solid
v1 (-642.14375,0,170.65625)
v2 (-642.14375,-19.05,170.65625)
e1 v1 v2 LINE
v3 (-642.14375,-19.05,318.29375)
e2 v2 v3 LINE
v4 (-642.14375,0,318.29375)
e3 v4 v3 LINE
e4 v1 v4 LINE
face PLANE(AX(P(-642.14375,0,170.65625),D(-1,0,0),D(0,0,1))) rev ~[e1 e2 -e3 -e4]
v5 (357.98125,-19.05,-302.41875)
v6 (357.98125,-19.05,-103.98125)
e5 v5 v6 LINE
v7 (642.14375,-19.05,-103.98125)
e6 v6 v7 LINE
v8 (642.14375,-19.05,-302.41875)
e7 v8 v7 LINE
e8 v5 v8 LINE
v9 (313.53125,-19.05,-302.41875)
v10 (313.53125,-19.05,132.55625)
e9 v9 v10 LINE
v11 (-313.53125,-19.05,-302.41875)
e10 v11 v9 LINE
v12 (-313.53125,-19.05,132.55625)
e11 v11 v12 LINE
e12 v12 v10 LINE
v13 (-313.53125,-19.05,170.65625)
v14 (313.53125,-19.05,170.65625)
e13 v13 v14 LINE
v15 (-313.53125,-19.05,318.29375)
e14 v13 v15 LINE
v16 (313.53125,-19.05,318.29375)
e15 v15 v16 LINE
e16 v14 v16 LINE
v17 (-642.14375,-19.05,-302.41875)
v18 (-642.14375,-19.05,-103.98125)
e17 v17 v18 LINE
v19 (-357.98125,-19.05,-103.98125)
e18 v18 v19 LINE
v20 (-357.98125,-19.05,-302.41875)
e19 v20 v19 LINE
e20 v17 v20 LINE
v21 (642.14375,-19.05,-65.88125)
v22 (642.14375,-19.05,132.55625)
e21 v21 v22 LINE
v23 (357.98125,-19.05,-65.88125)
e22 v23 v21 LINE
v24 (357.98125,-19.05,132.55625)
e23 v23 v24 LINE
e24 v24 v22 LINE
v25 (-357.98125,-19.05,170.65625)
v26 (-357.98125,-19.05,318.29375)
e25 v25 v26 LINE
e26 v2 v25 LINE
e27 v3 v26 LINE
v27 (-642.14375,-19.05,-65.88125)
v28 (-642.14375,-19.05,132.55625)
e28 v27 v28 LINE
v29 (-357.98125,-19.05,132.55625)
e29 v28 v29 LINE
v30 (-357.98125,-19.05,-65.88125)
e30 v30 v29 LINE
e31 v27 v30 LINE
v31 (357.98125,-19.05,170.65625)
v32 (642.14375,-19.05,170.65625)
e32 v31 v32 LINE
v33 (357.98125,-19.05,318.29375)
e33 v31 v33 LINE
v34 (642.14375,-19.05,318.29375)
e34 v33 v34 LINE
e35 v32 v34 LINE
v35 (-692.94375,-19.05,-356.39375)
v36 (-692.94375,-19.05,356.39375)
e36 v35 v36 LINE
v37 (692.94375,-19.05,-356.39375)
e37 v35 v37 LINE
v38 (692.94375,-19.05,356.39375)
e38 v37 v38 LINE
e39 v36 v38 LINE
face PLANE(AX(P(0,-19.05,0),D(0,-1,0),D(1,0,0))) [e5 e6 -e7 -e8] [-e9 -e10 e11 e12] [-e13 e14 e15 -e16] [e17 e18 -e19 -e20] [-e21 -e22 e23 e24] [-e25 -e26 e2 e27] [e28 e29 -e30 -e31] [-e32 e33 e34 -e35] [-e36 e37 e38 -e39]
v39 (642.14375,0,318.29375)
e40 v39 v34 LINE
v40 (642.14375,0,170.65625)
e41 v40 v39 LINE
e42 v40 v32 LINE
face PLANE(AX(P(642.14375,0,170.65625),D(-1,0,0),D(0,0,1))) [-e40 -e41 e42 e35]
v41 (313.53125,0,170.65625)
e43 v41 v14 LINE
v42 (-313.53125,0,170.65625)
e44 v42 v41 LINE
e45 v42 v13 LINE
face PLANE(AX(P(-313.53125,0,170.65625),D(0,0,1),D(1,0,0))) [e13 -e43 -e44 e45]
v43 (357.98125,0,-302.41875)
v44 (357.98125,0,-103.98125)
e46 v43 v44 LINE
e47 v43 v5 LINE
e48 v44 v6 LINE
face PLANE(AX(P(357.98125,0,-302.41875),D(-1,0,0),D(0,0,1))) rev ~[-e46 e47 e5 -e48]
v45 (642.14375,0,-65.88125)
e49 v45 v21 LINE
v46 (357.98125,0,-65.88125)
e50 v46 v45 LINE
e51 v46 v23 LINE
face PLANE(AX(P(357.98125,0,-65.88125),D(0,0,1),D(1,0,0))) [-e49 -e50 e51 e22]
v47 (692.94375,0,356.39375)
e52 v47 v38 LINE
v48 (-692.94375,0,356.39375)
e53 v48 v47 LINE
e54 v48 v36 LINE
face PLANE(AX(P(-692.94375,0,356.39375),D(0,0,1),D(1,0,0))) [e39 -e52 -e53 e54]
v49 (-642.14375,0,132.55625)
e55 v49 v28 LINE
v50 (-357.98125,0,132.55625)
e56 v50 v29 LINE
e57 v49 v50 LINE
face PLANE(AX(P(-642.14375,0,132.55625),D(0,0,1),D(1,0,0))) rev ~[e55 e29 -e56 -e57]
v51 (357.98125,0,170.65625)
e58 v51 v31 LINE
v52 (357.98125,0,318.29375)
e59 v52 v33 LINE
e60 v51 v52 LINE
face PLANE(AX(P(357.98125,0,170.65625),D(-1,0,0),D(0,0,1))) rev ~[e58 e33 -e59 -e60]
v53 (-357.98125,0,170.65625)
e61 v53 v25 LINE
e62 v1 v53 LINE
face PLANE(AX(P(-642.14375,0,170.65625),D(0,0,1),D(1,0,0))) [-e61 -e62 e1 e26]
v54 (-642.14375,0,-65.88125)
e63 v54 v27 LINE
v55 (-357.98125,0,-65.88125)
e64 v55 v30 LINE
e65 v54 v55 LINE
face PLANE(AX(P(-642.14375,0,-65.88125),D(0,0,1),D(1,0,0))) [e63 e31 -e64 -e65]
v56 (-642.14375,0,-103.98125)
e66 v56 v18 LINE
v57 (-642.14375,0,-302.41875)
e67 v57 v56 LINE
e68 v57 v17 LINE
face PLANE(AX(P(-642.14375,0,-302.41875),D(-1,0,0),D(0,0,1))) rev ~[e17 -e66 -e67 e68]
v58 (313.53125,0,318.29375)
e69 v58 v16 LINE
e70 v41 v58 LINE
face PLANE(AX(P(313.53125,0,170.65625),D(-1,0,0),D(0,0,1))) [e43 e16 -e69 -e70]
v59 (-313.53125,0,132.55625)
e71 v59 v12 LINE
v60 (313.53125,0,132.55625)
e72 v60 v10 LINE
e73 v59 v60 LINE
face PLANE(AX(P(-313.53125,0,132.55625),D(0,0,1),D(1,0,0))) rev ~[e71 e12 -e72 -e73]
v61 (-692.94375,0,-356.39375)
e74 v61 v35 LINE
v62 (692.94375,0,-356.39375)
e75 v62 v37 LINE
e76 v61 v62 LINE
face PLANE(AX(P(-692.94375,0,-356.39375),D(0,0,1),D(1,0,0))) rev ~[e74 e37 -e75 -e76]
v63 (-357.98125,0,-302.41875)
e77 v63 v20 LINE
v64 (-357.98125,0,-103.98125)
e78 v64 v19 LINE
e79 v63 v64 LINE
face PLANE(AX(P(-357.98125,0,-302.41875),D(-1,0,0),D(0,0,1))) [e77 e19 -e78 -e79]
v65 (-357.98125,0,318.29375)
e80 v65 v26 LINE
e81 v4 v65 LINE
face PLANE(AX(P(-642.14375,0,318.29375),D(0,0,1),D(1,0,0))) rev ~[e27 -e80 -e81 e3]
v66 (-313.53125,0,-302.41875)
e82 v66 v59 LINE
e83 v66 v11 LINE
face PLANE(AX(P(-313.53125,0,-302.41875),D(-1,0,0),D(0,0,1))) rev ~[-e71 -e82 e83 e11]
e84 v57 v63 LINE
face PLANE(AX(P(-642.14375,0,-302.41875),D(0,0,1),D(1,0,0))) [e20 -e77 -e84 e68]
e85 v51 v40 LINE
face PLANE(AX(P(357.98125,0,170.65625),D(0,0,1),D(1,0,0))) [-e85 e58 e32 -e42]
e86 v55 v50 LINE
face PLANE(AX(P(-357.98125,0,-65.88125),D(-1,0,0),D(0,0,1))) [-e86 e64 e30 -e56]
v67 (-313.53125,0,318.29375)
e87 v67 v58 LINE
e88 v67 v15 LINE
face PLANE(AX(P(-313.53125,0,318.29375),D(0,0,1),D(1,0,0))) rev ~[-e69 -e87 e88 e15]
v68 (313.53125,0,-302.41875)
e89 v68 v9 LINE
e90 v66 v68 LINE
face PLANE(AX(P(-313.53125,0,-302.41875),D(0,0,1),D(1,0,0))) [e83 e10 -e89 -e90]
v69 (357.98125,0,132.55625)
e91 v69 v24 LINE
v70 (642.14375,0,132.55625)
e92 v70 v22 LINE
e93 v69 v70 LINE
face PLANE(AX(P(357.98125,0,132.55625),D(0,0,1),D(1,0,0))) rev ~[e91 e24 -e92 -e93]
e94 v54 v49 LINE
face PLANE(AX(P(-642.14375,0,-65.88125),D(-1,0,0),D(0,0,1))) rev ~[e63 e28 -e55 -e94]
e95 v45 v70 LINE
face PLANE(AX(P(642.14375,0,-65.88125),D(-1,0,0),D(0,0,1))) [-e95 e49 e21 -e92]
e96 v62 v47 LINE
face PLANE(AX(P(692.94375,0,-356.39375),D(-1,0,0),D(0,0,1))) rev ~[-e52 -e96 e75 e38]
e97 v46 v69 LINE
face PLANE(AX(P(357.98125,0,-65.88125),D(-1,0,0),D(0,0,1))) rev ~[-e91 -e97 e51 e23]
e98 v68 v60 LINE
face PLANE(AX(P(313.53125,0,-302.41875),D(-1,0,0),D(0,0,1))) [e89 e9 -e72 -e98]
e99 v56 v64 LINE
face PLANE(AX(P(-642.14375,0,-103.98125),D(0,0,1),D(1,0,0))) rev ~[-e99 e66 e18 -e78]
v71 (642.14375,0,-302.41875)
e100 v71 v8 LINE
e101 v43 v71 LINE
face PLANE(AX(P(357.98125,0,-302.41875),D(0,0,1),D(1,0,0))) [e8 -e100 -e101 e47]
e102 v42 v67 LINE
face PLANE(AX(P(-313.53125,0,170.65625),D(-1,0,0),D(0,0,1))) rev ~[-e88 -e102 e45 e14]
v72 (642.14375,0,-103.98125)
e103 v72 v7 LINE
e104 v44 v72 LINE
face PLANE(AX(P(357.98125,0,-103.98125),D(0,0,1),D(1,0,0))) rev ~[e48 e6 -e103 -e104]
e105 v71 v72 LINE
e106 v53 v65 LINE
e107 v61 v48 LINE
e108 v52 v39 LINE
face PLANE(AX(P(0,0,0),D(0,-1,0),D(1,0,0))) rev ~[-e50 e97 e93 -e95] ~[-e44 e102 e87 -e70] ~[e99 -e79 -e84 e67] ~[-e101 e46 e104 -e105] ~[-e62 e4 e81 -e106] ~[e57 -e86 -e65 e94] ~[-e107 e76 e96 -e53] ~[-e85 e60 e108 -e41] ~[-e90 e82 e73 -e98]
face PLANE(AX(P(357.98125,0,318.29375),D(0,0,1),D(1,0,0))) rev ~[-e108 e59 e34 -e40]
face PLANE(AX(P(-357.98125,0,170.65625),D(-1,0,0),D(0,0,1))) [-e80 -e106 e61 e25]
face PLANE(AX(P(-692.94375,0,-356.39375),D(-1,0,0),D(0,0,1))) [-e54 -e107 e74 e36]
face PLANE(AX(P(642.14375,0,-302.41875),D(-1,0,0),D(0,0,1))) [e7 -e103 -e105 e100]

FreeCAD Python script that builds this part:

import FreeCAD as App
import Part
import Sketcher
from FreeCAD import Vector
Q = App.Units.Quantity


def add_polygon(sketch, points):
    """Adds a closed chain of lines whose ends are joined by coincident constraints."""
    first, n = sketch.GeometryCount, len(points)
    for a, b in zip(points, points[1:] + points[:1]):
        sketch.addGeometry(Part.LineSegment(App.Vector(*a, 0), App.Vector(*b, 0)), False)
    for i in range(n):
        sketch.addConstraint(Sketcher.Constraint("Coincident", first + i, 2, first + (i + 1) % n, 1))

doc = App.newDocument("Part")
body = doc.addObject("PartDesign::Body", "Body")

# Sketch on XZ plane
sketch1 = doc.addObject("Sketcher::SketchObject", "Sketch")
body.addObject(sketch1)
sketch1.AttachmentSupport = (doc.XZ_Plane, [""])
sketch1.MapMode = "FlatFace"
add_polygon(sketch1, [(-692.94375, 356.39375), (-692.94375, -356.39375), (692.94375, -356.39375), (692.94375, 356.39375)])  # lines 0-3
add_polygon(sketch1, [(-357.98125, -302.41875), (-642.14375, -302.41875), (-642.14375, -103.98125), (-357.98125, -103.98125)])  # lines 4-7
add_polygon(sketch1, [(642.14375, -302.41875), (357.98125, -302.41875), (357.98125, -103.98125), (642.14375, -103.98125)])  # lines 8-11
add_polygon(sketch1, [(313.53125, -302.41875), (-313.53125, -302.41875), (-313.53125, 132.55625), (313.53125, 132.55625)])  # lines 12-15
add_polygon(sketch1, [(-357.98125, -65.88125), (-642.14375, -65.88125), (-642.14375, 132.55625), (-357.98125, 132.55625)])  # lines 16-19
add_polygon(sketch1, [(-357.98125, 170.65625), (-642.14375, 170.65625), (-642.14375, 318.29375), (-357.98125, 318.29375)])  # lines 20-23
add_polygon(sketch1, [(642.14375, -65.88125), (357.98125, -65.88125), (357.98125, 132.55625), (642.14375, 132.55625)])  # lines 24-27
add_polygon(sketch1, [(313.53125, 170.65625), (-313.53125, 170.65625), (-313.53125, 318.29375), (313.53125, 318.29375)])  # lines 28-31
add_polygon(sketch1, [(642.14375, 170.65625), (357.98125, 170.65625), (357.98125, 318.29375), (642.14375, 318.29375)])  # lines 32-35
sketch1.addConstraint(Sketcher.Constraint("Vertical", 0))
sketch1.addConstraint(Sketcher.Constraint("Horizontal", 1))
sketch1.addConstraint(Sketcher.Constraint("Vertical", 2))
sketch1.addConstraint(Sketcher.Constraint("Horizontal", 3))
sketch1.addConstraint(Sketcher.Constraint("Horizontal", 4))
sketch1.addConstraint(Sketcher.Constraint("Vertical", 5))
sketch1.addConstraint(Sketcher.Constraint("Horizontal", 6))
sketch1.addConstraint(Sketcher.Constraint("Vertical", 7))
sketch1.addConstraint(Sketcher.Constraint("Horizontal", 8))
sketch1.addConstraint(Sketcher.Constraint("Vertical", 9))
sketch1.addConstraint(Sketcher.Constraint("Horizontal", 10))
sketch1.addConstraint(Sketcher.Constraint("Vertical", 11))
sketch1.addConstraint(Sketcher.Constraint("Horizontal", 12))
sketch1.addConstraint(Sketcher.Constraint("Vertical", 13))
sketch1.addConstraint(Sketcher.Constraint("Horizontal", 14))
sketch1.addConstraint(Sketcher.Constraint("Vertical", 15))
sketch1.addConstraint(Sketcher.Constraint("Horizontal", 16))
sketch1.addConstraint(Sketcher.Constraint("Vertical", 17))
sketch1.addConstraint(Sketcher.Constraint("Horizontal", 18))
sketch1.addConstraint(Sketcher.Constraint("Vertical", 19))
sketch1.addConstraint(Sketcher.Constraint("Horizontal", 20))
sketch1.addConstraint(Sketcher.Constraint("Vertical", 21))
sketch1.addConstraint(Sketcher.Constraint("Horizontal", 22))
sketch1.addConstraint(Sketcher.Constraint("Vertical", 23))
sketch1.addConstraint(Sketcher.Constraint("Horizontal", 24))
sketch1.addConstraint(Sketcher.Constraint("Vertical", 25))
sketch1.addConstraint(Sketcher.Constraint("Horizontal", 26))
sketch1.addConstraint(Sketcher.Constraint("Vertical", 27))
sketch1.addConstraint(Sketcher.Constraint("Horizontal", 28))
sketch1.addConstraint(Sketcher.Constraint("Vertical", 29))
sketch1.addConstraint(Sketcher.Constraint("Horizontal", 30))
sketch1.addConstraint(Sketcher.Constraint("Vertical", 31))
sketch1.addConstraint(Sketcher.Constraint("Horizontal", 32))
sketch1.addConstraint(Sketcher.Constraint("Vertical", 33))
sketch1.addConstraint(Sketcher.Constraint("Horizontal", 34))
sketch1.addConstraint(Sketcher.Constraint("Vertical", 35))
sketch1.addConstraint(Sketcher.Constraint("Symmetric", 0, 2, 2, 2, -1, 1))
sketch1.addConstraint(Sketcher.Constraint("Symmetric", 7, 2, 8, 2, -2))
sketch1.addConstraint(Sketcher.Constraint("Symmetric", 5, 2, 10, 2, -2))
sketch1.addConstraint(Sketcher.Constraint("Symmetric", 19, 2, 24, 2, -2))
sketch1.addConstraint(Sketcher.Constraint("Symmetric", 17, 2, 26, 2, -2))
sketch1.addConstraint(Sketcher.Constraint("Symmetric", 23, 2, 32, 2, -2))
sketch1.addConstraint(Sketcher.Constraint("Symmetric", 21, 2, 34, 2, -2))
sketch1.addConstraint(Sketcher.Constraint("Horizontal", 11, 2, 12, 2))
sketch1.addConstraint(Sketcher.Constraint("Horizontal", 14, 2, 17, 2))
sketch1.addConstraint(Sketcher.Constraint("Horizontal", 23, 2, 28, 2))
sketch1.addConstraint(Sketcher.Constraint("Horizontal", 22, 2, 29, 2))
sketch1.addConstraint(Sketcher.Constraint("Vertical", 5, 2, 16, 2))
sketch1.addConstraint(Sketcher.Constraint("Vertical", 7, 2, 18, 2))
sketch1.addConstraint(Sketcher.Constraint("Vertical", 17, 2, 20, 2))
sketch1.addConstraint(Sketcher.Constraint("Vertical", 19, 2, 22, 2))
sketch1.addConstraint(Sketcher.Constraint("Vertical", 13, 2, 28, 2))
sketch1.addConstraint(Sketcher.Constraint("Vertical", 15, 2, 30, 2))
sketch1.addConstraint(Sketcher.Constraint("Equal", 11, 17))
sketch1.addConstraint(Sketcher.Constraint("DistanceX", 0, 2, 4, 2, Q("2 in")))
sketch1.addConstraint(Sketcher.Constraint("DistanceY", 5, 2, 16, 2, Q("1.5 in")))
sketch1.addConstraint(Sketcher.Constraint("DistanceY", 17, 2, 20, 2, Q("1.5 in")))
sketch1.addConstraint(Sketcher.Constraint("DistanceY", 21, 2, 3, 2, Q("1.5 in")))
sketch1.addConstraint(Sketcher.Constraint("DistanceX", 1, 1, 1, 2, Q("54.5625 in")))
sketch1.addConstraint(Sketcher.Constraint("DistanceX", 4, 2, 4, 1, Q("11.1875 in")))
sketch1.addConstraint(Sketcher.Constraint("DistanceX", 12, 2, 12, 1, Q("24.6875 in")))
sketch1.addConstraint(Sketcher.Constraint("DistanceY", 0, 2, 0, 1, Q("28.0625 in")))
sketch1.addConstraint(Sketcher.Constraint("DistanceY", 5, 1, 5, 2, Q("7.8125 in")))
sketch1.addConstraint(Sketcher.Constraint("DistanceY", 21, 1, 21, 2, Q("5.8125 in")))
sketch1.addConstraint(Sketcher.Constraint("DistanceX", 7, 2, 12, 2, Q("1.75 in")))
pad1 = doc.addObject("PartDesign::Pad", "Pad")
body.addObject(pad1)
pad1.Profile = sketch1
pad1.Length = Q("0.75 in")

doc.recompute()
